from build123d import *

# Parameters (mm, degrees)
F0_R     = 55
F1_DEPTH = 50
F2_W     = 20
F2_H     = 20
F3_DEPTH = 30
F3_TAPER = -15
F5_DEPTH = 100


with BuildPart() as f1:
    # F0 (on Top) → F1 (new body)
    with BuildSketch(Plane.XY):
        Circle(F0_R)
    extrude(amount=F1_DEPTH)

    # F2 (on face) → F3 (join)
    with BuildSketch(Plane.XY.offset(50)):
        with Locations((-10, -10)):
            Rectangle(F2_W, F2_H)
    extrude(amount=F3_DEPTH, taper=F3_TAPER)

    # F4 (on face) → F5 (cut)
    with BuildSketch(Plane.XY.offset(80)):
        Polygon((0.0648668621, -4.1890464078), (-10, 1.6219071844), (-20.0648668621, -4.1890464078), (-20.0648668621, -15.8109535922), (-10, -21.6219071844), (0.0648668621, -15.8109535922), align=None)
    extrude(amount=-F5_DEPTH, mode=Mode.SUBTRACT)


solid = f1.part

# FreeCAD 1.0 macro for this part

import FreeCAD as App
import Part
import Sketcher
Q = App.Units.Quantity


def add_polygon(sketch, points):
    """Adds a closed chain of lines whose ends are joined by coincident constraints."""
    first, n = sketch.GeometryCount, len(points)
    for a, b in zip(points, points[1:] + points[:1]):
        sketch.addGeometry(Part.LineSegment(App.Vector(*a, 0), App.Vector(*b, 0)), False)
    for i in range(n):
        sketch.addConstraint(Sketcher.Constraint("Coincident", first + i, 2, first + (i + 1) % n, 1))

doc = App.newDocument("Part")
body = doc.addObject("PartDesign::Body", "Body")

sketch1 = body.newObject("Sketcher::SketchObject", "Sketch")
sketch1.AttachmentSupport = (doc.getObject("XY_Plane"), [""])
sketch1.MapMode = "FlatFace"
sketch1.addGeometry(Part.Circle(App.Vector(0, 0, 0), App.Vector(0, 0, 1), 55), False)
sketch1.addConstraint([
    Sketcher.Constraint("Coincident", 0, 3, -1, 1),
    Sketcher.Constraint("Diameter", 0, Q("110 mm")),
])
pad1 = body.newObject("PartDesign::Pad", "Pad")
pad1.Profile = sketch1
pad1.Length = 50

sketch2 = body.newObject("Sketcher::SketchObject", "Sketch001")
sketch2.AttachmentSupport = (doc.getObject("XY_Plane"), [""])
sketch2.MapMode = "FlatFace"
sketch2.AttachmentOffset = App.Placement(App.Vector(0, 0, 50), App.Rotation())
add_polygon(sketch2, [(-20, 0), (-20, -20), (0, -20), (0, 0)])
sketch2.addConstraint([
    Sketcher.Constraint("Vertical", 0),
    Sketcher.Constraint("Horizontal", 1),
    Sketcher.Constraint("Vertical", 2),
    Sketcher.Constraint("Horizontal", 3),
    Sketcher.Constraint("Coincident", 2, 2, -1, 1),
    Sketcher.Constraint("Equal", 3, 0),
    Sketcher.Constraint("DistanceX", 1, 1, 1, 2, Q("20 mm")),
])
pad2 = body.newObject("PartDesign::Pad", "Pad001")
pad2.Profile = sketch2
pad2.Length = 30
pad2.TaperAngle = 15

sketch3 = body.newObject("Sketcher::SketchObject", "Sketch002")
sketch3.AttachmentSupport = (doc.getObject("XY_Plane"), [""])
sketch3.MapMode = "FlatFace"
sketch3.AttachmentOffset = App.Placement(App.Vector(0, 0, 80), App.Rotation())
add_polygon(sketch3, [(0.064867, -4.189046), (-10, 1.621907), (-20.064867, -4.189046), (-20.064867, -15.810954), (-10, -21.621907), (0.064867, -15.810954)])
sketch3.addConstraint([
    Sketcher.Constraint("Vertical", 2),
    Sketcher.Constraint("Vertical", 5),
    Sketcher.Constraint("Parallel", 0, 3),
    Sketcher.Constraint("Parallel", 1, 4),
    Sketcher.Constraint("Horizontal", 2, 2, 4, 2),
    Sketcher.Constraint("Horizontal", 1, 2, 5, 2),
    Sketcher.Constraint("Vertical", 0, 2, 3, 2),
    Sketcher.Constraint("Angle", 0, Q("150 deg")),
    Sketcher.Constraint("DistanceX", 0, 2, -1, 1, Q("10 mm")),
    Sketcher.Constraint("DistanceY", 2, 2, 2, 1, Q("11.621907 mm")),
    Sketcher.Constraint("DistanceY", 2, 2, 0, 2, Q("17.432861 mm")),
    Sketcher.Constraint("DistanceY", -1, 1, 0, 2, Q("1.621907 mm")),
])
pocket1 = body.newObject("PartDesign::Pocket", "Pocket")
pocket1.Profile = sketch3
pocket1.Length = 100

doc.recompute()
